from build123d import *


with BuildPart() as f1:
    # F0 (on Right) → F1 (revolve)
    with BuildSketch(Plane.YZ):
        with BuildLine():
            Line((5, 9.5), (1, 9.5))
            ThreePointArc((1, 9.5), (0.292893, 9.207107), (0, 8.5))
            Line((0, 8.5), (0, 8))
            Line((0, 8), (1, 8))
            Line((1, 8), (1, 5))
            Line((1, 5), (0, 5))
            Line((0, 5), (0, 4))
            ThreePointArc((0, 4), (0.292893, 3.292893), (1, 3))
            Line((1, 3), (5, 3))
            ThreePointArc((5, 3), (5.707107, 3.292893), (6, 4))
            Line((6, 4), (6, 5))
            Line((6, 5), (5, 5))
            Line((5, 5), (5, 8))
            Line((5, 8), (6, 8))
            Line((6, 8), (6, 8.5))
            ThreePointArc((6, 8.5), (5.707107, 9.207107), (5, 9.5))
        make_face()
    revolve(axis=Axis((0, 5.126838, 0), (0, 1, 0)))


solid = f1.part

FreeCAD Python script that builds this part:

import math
import FreeCAD as App
import Part
import Sketcher
from FreeCAD import Vector
Q = App.Units.Quantity

doc = App.newDocument("Part")
params = doc.addObject("Spreadsheet::Sheet", "Params")
for row, (alias, value) in enumerate([
    ("sketch1_radius", "0.999999 mm"),
    ("sketch1_width", "4 mm"),
    ("sketch1_height", "3 mm"),
    ("sketch1_height2", "0.5 mm"),
    ("revolution_angle", "360 deg"),
], start=1):
    params.set(f"A{row}", alias)
    params.set(f"B{row}", "=" + value)
    params.setAlias(f"B{row}", alias)

body = doc.addObject("PartDesign::Body", "Body")

sketch1 = doc.addObject("Sketcher::SketchObject", "Sketch")
body.addObject(sketch1)
sketch1.AttachmentSupport = (doc.YZ_Plane, [""])
sketch1.MapMode = "FlatFace"
sketch1.addGeometry([
    Part.LineSegment(Vector(5, 9.5, 0), Vector(1, 9.5, 0)),
    Part.ArcOfCircle(Part.Circle(Vector(1, 8.5, 0), Vector(0, 0, 1), 1), math.radians(90), math.radians(180)),
    Part.LineSegment(Vector(0, 8.5, 0), Vector(0, 8, 0)),
    Part.LineSegment(Vector(0, 8, 0), Vector(1, 8, 0)),
    Part.LineSegment(Vector(1, 8, 0), Vector(1, 5, 0)),
    Part.LineSegment(Vector(1, 5, 0), Vector(0, 5, 0)),
    Part.LineSegment(Vector(0, 5, 0), Vector(0, 4, 0)),
    Part.ArcOfCircle(Part.Circle(Vector(1, 4, 0), Vector(0, 0, 1), 1), math.radians(180), math.radians(270)),
    Part.LineSegment(Vector(1, 3, 0), Vector(5, 3, 0)),
    Part.ArcOfCircle(Part.Circle(Vector(5, 4, 0), Vector(0, 0, 1), 1), math.radians(-90), math.radians(0)),
    Part.LineSegment(Vector(6, 4, 0), Vector(6, 5, 0)),
    Part.LineSegment(Vector(6, 5, 0), Vector(5, 5, 0)),
    Part.LineSegment(Vector(5, 5, 0), Vector(5, 8, 0)),
    Part.LineSegment(Vector(5, 8, 0), Vector(6, 8, 0)),
    Part.LineSegment(Vector(6, 8, 0), Vector(6, 8.5, 0)),
    Part.ArcOfCircle(Part.Circle(Vector(5, 8.5, 0), Vector(0, 0, 1), 1), math.radians(0), math.radians(90)),
], False)
sketch1.addConstraint([
    Sketcher.Constraint("Tangent", 0, 2, 1, 1),
    Sketcher.Constraint("Tangent", 1, 2, 2, 1),
    Sketcher.Constraint("Coincident", 2, 2, 3, 1),
    Sketcher.Constraint("Coincident", 3, 2, 4, 1),
    Sketcher.Constraint("Coincident", 4, 2, 5, 1),
    Sketcher.Constraint("Coincident", 5, 2, 6, 1),
    Sketcher.Constraint("Tangent", 6, 2, 7, 1),
    Sketcher.Constraint("Tangent", 7, 2, 8, 1),
    Sketcher.Constraint("Tangent", 8, 2, 9, 1),
    Sketcher.Constraint("Tangent", 9, 2, 10, 1),
    Sketcher.Constraint("Coincident", 10, 2, 11, 1),
    Sketcher.Constraint("Coincident", 11, 2, 12, 1),
    Sketcher.Constraint("Coincident", 12, 2, 13, 1),
    Sketcher.Constraint("Coincident", 13, 2, 14, 1),
    Sketcher.Constraint("Tangent", 14, 2, 15, 1),
    Sketcher.Constraint("Tangent", 15, 2, 0, 1),
    Sketcher.Constraint("Horizontal", 0),
    Sketcher.Constraint("Vertical", 2),
    Sketcher.Constraint("Horizontal", 3),
    Sketcher.Constraint("Vertical", 4),
    Sketcher.Constraint("Horizontal", 5),
    Sketcher.Constraint("Vertical", 6),
    Sketcher.Constraint("Horizontal", 8),
    Sketcher.Constraint("Vertical", 10),
    Sketcher.Constraint("Horizontal", 11),
    Sketcher.Constraint("Vertical", 12),
    Sketcher.Constraint("Horizontal", 13),
    Sketcher.Constraint("Vertical", 14),
    Sketcher.Constraint("Equal", 1, 7),
    Sketcher.Constraint("Equal", 7, 9),
    Sketcher.Constraint("Equal", 9, 15),
    Sketcher.Constraint("PointOnObject", 1, 2, -2),
    Sketcher.Constraint("PointOnObject", 5, 2, -2),
    Sketcher.Constraint("Horizontal", 5, 2, 10, 2),
    Sketcher.Constraint("Horizontal", 3, 2, 12, 2),
    Sketcher.Constraint("Vertical", 9, 3, 15, 3),
    Sketcher.Constraint("Vertical", 0, 2, 3, 2),
    Sketcher.Constraint("Vertical", 8, 2, 11, 2),
    Sketcher.Constraint("Equal", 13, 6),
    Sketcher.Constraint("Radius", 1, Q("0.999999 mm")),
    Sketcher.Constraint("DistanceX", 0, 2, 0, 1, Q("4 mm")),
    Sketcher.Constraint("DistanceY", 4, 2, 4, 1, Q("3 mm")),
    Sketcher.Constraint("DistanceY", 2, 2, 2, 1, Q("0.5 mm")),
    Sketcher.Constraint("DistanceY", -1, 1, 7, 3, Q("3.999999 mm")),
])
sketch1.setExpression("Constraints[39]", "Params.sketch1_radius")
sketch1.setExpression("Constraints[40]", "Params.sketch1_width")
sketch1.setExpression("Constraints[41]", "Params.sketch1_height")
sketch1.setExpression("Constraints[42]", "Params.sketch1_height2")
revolution = doc.addObject("PartDesign::Revolution", "Revolution")
body.addObject(revolution)
revolution.Profile = sketch1
revolution.ReferenceAxis = (sketch1, ["H_Axis"])
revolution.setExpression("Angle", "Params.revolution_angle")

doc.recompute()
